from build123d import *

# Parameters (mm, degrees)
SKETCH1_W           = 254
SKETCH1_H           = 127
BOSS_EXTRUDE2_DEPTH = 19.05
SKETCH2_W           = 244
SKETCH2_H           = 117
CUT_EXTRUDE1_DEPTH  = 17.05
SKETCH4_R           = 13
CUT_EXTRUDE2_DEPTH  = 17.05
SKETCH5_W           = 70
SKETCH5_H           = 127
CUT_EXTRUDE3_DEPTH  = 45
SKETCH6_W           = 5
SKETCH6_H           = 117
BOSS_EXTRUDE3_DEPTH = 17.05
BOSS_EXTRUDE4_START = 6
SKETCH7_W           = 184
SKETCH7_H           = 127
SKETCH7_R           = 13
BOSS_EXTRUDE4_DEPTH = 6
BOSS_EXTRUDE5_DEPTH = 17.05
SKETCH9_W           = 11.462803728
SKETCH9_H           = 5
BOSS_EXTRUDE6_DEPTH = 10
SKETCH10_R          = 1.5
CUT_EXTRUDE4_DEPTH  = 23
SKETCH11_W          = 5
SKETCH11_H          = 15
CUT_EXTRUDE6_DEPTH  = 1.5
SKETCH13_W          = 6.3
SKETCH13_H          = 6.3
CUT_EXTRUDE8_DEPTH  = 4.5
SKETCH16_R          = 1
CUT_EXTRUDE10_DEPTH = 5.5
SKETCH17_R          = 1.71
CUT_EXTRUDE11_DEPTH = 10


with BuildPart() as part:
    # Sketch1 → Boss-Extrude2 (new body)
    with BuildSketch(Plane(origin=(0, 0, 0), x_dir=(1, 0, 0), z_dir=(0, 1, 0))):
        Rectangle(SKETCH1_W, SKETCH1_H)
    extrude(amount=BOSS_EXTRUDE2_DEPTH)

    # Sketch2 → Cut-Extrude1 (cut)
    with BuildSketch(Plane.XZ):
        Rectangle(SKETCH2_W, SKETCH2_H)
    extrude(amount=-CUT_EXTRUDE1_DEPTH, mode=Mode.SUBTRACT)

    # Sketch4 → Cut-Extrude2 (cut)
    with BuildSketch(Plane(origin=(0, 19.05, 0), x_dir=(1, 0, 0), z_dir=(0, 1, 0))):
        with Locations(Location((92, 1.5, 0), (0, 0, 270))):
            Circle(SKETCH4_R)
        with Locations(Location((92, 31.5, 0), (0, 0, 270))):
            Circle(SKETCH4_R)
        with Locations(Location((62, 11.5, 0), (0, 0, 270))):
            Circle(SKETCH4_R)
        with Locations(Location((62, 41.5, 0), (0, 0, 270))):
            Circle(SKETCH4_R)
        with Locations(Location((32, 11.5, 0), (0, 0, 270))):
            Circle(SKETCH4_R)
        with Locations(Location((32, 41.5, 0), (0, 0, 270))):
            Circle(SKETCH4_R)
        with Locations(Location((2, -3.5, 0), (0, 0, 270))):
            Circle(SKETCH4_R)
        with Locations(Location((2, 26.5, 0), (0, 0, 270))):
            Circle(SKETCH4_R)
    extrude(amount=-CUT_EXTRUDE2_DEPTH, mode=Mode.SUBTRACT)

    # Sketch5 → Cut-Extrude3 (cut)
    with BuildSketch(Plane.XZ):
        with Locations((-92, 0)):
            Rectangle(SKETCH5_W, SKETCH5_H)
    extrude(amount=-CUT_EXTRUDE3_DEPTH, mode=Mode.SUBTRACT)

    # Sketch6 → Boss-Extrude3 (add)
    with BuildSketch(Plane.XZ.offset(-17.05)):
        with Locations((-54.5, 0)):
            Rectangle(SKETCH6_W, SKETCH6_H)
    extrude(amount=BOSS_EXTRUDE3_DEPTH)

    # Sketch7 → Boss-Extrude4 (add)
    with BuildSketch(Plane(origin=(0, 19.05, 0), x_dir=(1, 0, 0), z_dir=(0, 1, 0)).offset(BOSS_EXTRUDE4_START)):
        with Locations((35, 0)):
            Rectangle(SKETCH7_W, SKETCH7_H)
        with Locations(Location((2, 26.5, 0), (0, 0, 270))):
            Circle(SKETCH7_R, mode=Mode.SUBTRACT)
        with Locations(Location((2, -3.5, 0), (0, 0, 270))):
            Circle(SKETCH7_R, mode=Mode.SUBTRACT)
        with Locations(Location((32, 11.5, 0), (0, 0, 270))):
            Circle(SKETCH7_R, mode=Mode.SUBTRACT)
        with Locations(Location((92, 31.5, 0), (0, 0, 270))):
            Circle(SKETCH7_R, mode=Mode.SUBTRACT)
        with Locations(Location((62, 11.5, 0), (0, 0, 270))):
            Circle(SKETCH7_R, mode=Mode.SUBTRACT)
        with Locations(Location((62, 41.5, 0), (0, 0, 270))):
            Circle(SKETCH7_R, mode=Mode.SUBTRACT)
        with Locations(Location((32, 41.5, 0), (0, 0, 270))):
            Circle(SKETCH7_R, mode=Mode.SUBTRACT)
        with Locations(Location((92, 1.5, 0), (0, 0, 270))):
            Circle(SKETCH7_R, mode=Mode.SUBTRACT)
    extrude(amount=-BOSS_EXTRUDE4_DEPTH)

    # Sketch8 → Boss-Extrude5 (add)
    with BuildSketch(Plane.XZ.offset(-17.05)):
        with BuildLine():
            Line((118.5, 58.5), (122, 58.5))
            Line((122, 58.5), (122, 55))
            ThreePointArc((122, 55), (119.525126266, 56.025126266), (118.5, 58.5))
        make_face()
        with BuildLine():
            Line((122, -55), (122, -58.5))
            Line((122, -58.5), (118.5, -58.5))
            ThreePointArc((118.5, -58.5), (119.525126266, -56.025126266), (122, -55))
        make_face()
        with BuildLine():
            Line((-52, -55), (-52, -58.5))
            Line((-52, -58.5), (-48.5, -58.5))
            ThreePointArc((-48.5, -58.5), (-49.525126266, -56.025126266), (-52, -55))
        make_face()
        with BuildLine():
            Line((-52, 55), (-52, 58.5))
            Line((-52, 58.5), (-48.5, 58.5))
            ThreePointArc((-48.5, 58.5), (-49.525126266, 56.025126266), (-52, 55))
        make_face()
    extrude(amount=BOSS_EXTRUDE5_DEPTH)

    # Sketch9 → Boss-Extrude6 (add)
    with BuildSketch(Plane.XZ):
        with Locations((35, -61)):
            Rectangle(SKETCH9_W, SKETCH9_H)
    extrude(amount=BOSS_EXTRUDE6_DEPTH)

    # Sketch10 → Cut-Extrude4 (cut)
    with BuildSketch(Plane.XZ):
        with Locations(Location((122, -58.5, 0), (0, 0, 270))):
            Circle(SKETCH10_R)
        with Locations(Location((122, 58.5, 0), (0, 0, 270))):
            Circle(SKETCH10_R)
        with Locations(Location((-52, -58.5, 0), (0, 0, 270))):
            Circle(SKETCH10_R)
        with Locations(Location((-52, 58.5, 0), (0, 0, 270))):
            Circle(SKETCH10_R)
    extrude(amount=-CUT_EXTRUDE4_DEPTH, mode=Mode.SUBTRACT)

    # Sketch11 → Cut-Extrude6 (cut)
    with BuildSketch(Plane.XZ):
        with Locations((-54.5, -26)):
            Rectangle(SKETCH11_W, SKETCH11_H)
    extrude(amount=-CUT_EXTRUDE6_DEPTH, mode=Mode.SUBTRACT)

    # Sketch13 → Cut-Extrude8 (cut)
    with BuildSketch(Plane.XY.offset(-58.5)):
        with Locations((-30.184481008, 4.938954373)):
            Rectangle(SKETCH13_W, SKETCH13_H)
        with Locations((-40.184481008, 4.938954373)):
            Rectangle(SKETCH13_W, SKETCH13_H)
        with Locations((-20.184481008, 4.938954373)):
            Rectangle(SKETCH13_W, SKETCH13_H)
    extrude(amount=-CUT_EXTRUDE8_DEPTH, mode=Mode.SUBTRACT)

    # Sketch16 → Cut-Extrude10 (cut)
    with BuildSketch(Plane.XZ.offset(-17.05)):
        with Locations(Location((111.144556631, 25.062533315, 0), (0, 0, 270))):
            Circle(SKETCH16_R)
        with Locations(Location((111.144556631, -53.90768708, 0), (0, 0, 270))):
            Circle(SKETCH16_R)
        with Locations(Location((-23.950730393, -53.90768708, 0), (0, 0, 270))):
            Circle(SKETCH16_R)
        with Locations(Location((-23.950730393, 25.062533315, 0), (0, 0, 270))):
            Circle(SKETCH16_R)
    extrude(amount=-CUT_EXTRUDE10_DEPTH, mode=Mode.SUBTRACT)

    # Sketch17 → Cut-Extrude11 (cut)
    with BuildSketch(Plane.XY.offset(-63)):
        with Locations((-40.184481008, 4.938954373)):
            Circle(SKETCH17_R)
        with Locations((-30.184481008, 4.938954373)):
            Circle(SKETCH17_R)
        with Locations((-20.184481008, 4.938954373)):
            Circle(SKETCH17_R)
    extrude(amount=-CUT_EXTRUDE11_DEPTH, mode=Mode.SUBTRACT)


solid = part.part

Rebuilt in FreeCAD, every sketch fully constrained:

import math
import FreeCAD as App
import Part
import Sketcher

V = App.Vector

doc = App.newDocument("Part")
body = doc.addObject("PartDesign::Body", "Body")

# Sketch on XZ plane
sketch1 = body.newObject("Sketcher::SketchObject", "Sketch")
sketch1.AttachmentSupport = (doc.getObject("XZ_Plane"), [""])
sketch1.MapMode = "FlatFace"
sketch1.addGeometry([
    Part.LineSegment(V(-127, -64, 0), V(-127, 64, 0)),
    Part.LineSegment(V(-127, 64, 0), V(127, 64, 0)),
    Part.LineSegment(V(127, 64, 0), V(127, -64, 0)),
    Part.LineSegment(V(127, -64, 0), V(-127, -64, 0)),
], False)
sketch1.addConstraint([
    Sketcher.Constraint("Coincident", 0, 2, 1, 1),
    Sketcher.Constraint("Coincident", 1, 2, 2, 1),
    Sketcher.Constraint("Coincident", 2, 2, 3, 1),
    Sketcher.Constraint("Coincident", 3, 2, 0, 1),
    Sketcher.Constraint("Vertical", 0),
    Sketcher.Constraint("Horizontal", 1),
    Sketcher.Constraint("Vertical", 2),
    Sketcher.Constraint("Horizontal", 3),
    Sketcher.Constraint("Symmetric", 0, 2, 2, 2, -1, 1),
    Sketcher.Constraint("DistanceX", 1, 1, 1, 2, 254.0),
    Sketcher.Constraint("DistanceY", 0, 1, 0, 2, 127.0),
])
pad1 = body.newObject("PartDesign::Pad", "Pad")
pad1.Profile = sketch1
pad1.Length = 19.05
pad1.Reversed = True

# Sketch on XZ plane
sketch2 = body.newObject("Sketcher::SketchObject", "Sketch001")
sketch2.AttachmentSupport = (doc.getObject("XZ_Plane"), [""])
sketch2.MapMode = "FlatFace"
sketch2.addGeometry([
    Part.LineSegment(V(-122, 58, 0), V(-122, -58, 0)),
    Part.LineSegment(V(-122, -58, 0), V(122, -58, 0)),
    Part.LineSegment(V(122, -58, 0), V(122, 58, 0)),
    Part.LineSegment(V(122, 58, 0), V(-122, 58, 0)),
], False)
sketch2.addConstraint([
    Sketcher.Constraint("Coincident", 0, 2, 1, 1),
    Sketcher.Constraint("Coincident", 1, 2, 2, 1),
    Sketcher.Constraint("Coincident", 2, 2, 3, 1),
    Sketcher.Constraint("Coincident", 3, 2, 0, 1),
    Sketcher.Constraint("Vertical", 0),
    Sketcher.Constraint("Horizontal", 1),
    Sketcher.Constraint("Vertical", 2),
    Sketcher.Constraint("Horizontal", 3),
    Sketcher.Constraint("Symmetric", 0, 2, 2, 2, -1, 1),
    Sketcher.Constraint("DistanceX", 1, 1, 1, 2, 244.0),
    Sketcher.Constraint("DistanceY", 0, 2, 0, 1, 117.0),
])
pocket1 = body.newObject("PartDesign::Pocket", "Pocket")
pocket1.Profile = sketch2
pocket1.Length = 17.05

# Sketch on XZ plane
sketch3 = body.newObject("Sketcher::SketchObject", "Sketch002")
sketch3.AttachmentSupport = (doc.getObject("XZ_Plane"), [""])
sketch3.MapMode = "FlatFace"
sketch3.AttachmentOffset = App.Placement(V(0, 0, -19.05), App.Rotation())
sketch3.addGeometry([
    Part.Circle(V(92, -2, 0), V(0, 0, 1), 13),  # 0
    Part.Circle(V(92, -32, 0), V(0, 0, 1), 13),  # 1
    Part.Circle(V(62, -12, 0), V(0, 0, 1), 13),  # 2
    Part.Circle(V(62, -42, 0), V(0, 0, 1), 13),  # 3
    Part.Circle(V(32, -12, 0), V(0, 0, 1), 13),  # 4
    Part.Circle(V(32, -42, 0), V(0, 0, 1), 13),  # 5
    Part.Circle(V(2, 4, 0), V(0, 0, 1), 13),  # 6
    Part.Circle(V(2, -26, 0), V(0, 0, 1), 13),  # 7
], False)
sketch3.addConstraint([
    Sketcher.Constraint("Equal", 0, 1),
    Sketcher.Constraint("Equal", 1, 2),
    Sketcher.Constraint("Equal", 2, 3),
    Sketcher.Constraint("Equal", 3, 4),
    Sketcher.Constraint("Equal", 4, 5),
    Sketcher.Constraint("Equal", 5, 6),
    Sketcher.Constraint("Equal", 6, 7),
    Sketcher.Constraint("Horizontal", 2, 3, 4, 3),
    Sketcher.Constraint("Horizontal", 3, 3, 5, 3),
    Sketcher.Constraint("Vertical", 0, 3, 1, 3),
    Sketcher.Constraint("Vertical", 2, 3, 3, 3),
    Sketcher.Constraint("Vertical", 4, 3, 5, 3),
    Sketcher.Constraint("Vertical", 6, 3, 7, 3),
    Sketcher.Constraint("Diameter", 0, 26.0),
    Sketcher.Constraint("DistanceX", -1, 1, 0, 3, 92.0),
    Sketcher.Constraint("DistanceX", -1, 1, 2, 3, 62.0),
    Sketcher.Constraint("DistanceX", -1, 1, 4, 3, 32.0),
    Sketcher.Constraint("DistanceX", -1, 1, 6, 3, 2.0),
    Sketcher.Constraint("DistanceY", 1, 3, 0, 3, 30.0),
    Sketcher.Constraint("DistanceY", 2, 3, 0, 3, 10.0),
    Sketcher.Constraint("DistanceY", 3, 3, 2, 3, 30.0),
    Sketcher.Constraint("DistanceY", 4, 3, 6, 3, 15.0),
    Sketcher.Constraint("DistanceY", 7, 3, 6, 3, 30.0),
    Sketcher.Constraint("DistanceY", 0, 3, -1, 1, 1.5),
])
pocket2 = body.newObject("PartDesign::Pocket", "Pocket001")
pocket2.Profile = sketch3
pocket2.Length = 17.05
pocket2.Reversed = True

# Sketch on XZ plane
sketch4 = body.newObject("Sketcher::SketchObject", "Sketch003")
sketch4.AttachmentSupport = (doc.getObject("XZ_Plane"), [""])
sketch4.MapMode = "FlatFace"
sketch4.addGeometry([
    Part.LineSegment(V(-127, 64, 0), V(-127, -64, 0)),
    Part.LineSegment(V(-127, -64, 0), V(-57, -64, 0)),
    Part.LineSegment(V(-57, -64, 0), V(-57, 64, 0)),
    Part.LineSegment(V(-57, 64, 0), V(-127, 64, 0)),
], False)
sketch4.addConstraint([
    Sketcher.Constraint("Coincident", 0, 2, 1, 1),
    Sketcher.Constraint("Coincident", 1, 2, 2, 1),
    Sketcher.Constraint("Coincident", 2, 2, 3, 1),
    Sketcher.Constraint("Coincident", 3, 2, 0, 1),
    Sketcher.Constraint("Vertical", 0),
    Sketcher.Constraint("Horizontal", 1),
    Sketcher.Constraint("Vertical", 2),
    Sketcher.Constraint("Horizontal", 3),
    Sketcher.Constraint("DistanceX", 1, 1, 1, 2, 70.0),
    Sketcher.Constraint("DistanceY", 0, 2, 0, 1, 127.0),
    Sketcher.Constraint("DistanceX", 0, 2, -1, 1, 127.0),
    Sketcher.Constraint("DistanceY", 0, 2, -1, 1, 63.5),
])
pocket3 = body.newObject("PartDesign::Pocket", "Pocket002")
pocket3.Profile = sketch4
pocket3.Length = 45

# Sketch on XZ plane
sketch5 = body.newObject("Sketcher::SketchObject", "Sketch004")
sketch5.AttachmentSupport = (doc.getObject("XZ_Plane"), [""])
sketch5.MapMode = "FlatFace"
sketch5.AttachmentOffset = App.Placement(V(0, 0, -17.05), App.Rotation())
sketch5.addGeometry([
    Part.LineSegment(V(-57, 58, 0), V(-57, -58, 0)),
    Part.LineSegment(V(-57, -58, 0), V(-52, -58, 0)),
    Part.LineSegment(V(-52, -58, 0), V(-52, 58, 0)),
    Part.LineSegment(V(-52, 58, 0), V(-57, 58, 0)),
], False)
sketch5.addConstraint([
    Sketcher.Constraint("Coincident", 0, 2, 1, 1),
    Sketcher.Constraint("Coincident", 1, 2, 2, 1),
    Sketcher.Constraint("Coincident", 2, 2, 3, 1),
    Sketcher.Constraint("Coincident", 3, 2, 0, 1),
    Sketcher.Constraint("Vertical", 0),
    Sketcher.Constraint("Horizontal", 1),
    Sketcher.Constraint("Vertical", 2),
    Sketcher.Constraint("Horizontal", 3),
    Sketcher.Constraint("DistanceX", 1, 1, 1, 2, 5.0),
    Sketcher.Constraint("DistanceY", 0, 2, 0, 1, 117.0),
    Sketcher.Constraint("DistanceX", 0, 2, -1, 1, 57.0),
    Sketcher.Constraint("DistanceY", 0, 2, -1, 1, 58.5),
])
pad2 = body.newObject("PartDesign::Pad", "Pad001")
pad2.Profile = sketch5
pad2.Length = 17.05

# Sketch on XZ plane
sketch6 = body.newObject("Sketcher::SketchObject", "Sketch005")
sketch6.AttachmentSupport = (doc.getObject("XZ_Plane"), [""])
sketch6.MapMode = "FlatFace"
sketch6.AttachmentOffset = App.Placement(V(0, 0, -25.05), App.Rotation())
sketch6.addGeometry([
    Part.LineSegment(V(-57, -64, 0), V(-57, 64, 0)),  # 0
    Part.LineSegment(V(-57, 64, 0), V(127, 64, 0)),  # 1
    Part.LineSegment(V(127, 64, 0), V(127, -64, 0)),  # 2
    Part.LineSegment(V(127, -64, 0), V(-57, -64, 0)),  # 3
    Part.Circle(V(2, 4, 0), V(0, 0, 1), 13),  # 4
    Part.Circle(V(32, -12, 0), V(0, 0, 1), 13),  # 5
    Part.Circle(V(62, -12, 0), V(0, 0, 1), 13),  # 6
    Part.Circle(V(92, -2, 0), V(0, 0, 1), 13),  # 7
    Part.Circle(V(2, -26, 0), V(0, 0, 1), 13),  # 8
    Part.Circle(V(32, -42, 0), V(0, 0, 1), 13),  # 9
    Part.Circle(V(92, -32, 0), V(0, 0, 1), 13),  # 10
    Part.Circle(V(62, -42, 0), V(0, 0, 1), 13),  # 11
], False)
sketch6.addConstraint([
    Sketcher.Constraint("Coincident", 0, 2, 1, 1),
    Sketcher.Constraint("Coincident", 1, 2, 2, 1),
    Sketcher.Constraint("Coincident", 2, 2, 3, 1),
    Sketcher.Constraint("Coincident", 3, 2, 0, 1),
    Sketcher.Constraint("Vertical", 0),
    Sketcher.Constraint("Horizontal", 1),
    Sketcher.Constraint("Vertical", 2),
    Sketcher.Constraint("Horizontal", 3),
    Sketcher.Constraint("Equal", 4, 5),
    Sketcher.Constraint("Equal", 5, 6),
    Sketcher.Constraint("Equal", 6, 7),
    Sketcher.Constraint("Equal", 7, 8),
    Sketcher.Constraint("Equal", 8, 9),
    Sketcher.Constraint("Equal", 9, 10),
    Sketcher.Constraint("Equal", 10, 11),
    Sketcher.Constraint("Horizontal", 5, 3, 6, 3),
    Sketcher.Constraint("Horizontal", 9, 3, 11, 3),
    Sketcher.Constraint("Vertical", 4, 3, 8, 3),
    Sketcher.Constraint("Vertical", 5, 3, 9, 3),
    Sketcher.Constraint("Vertical", 7, 3, 10, 3),
    Sketcher.Constraint("Vertical", 6, 3, 11, 3),
    Sketcher.Constraint("Diameter", 4, 26.0),
    Sketcher.Constraint("DistanceX", 1, 1, 1, 2, 184.0),
    Sketcher.Constraint("DistanceY", 0, 1, 0, 2, 127.0),
    Sketcher.Constraint("DistanceX", -1, 1, 4, 3, 2.0),
    Sketcher.Constraint("DistanceX", -1, 1, 5, 3, 32.0),
    Sketcher.Constraint("DistanceX", -1, 1, 6, 3, 62.0),
    Sketcher.Constraint("DistanceX", -1, 1, 7, 3, 92.0),
    Sketcher.Constraint("DistanceX", 0, 2, -1, 1, 57.0),
    Sketcher.Constraint("DistanceY", 5, 3, 4, 3, 15.0),
    Sketcher.Constraint("DistanceY", 6, 3, 7, 3, 10.0),
    Sketcher.Constraint("DistanceY", 8, 3, 4, 3, 30.0),
    Sketcher.Constraint("DistanceY", 9, 3, 5, 3, 30.0),
    Sketcher.Constraint("DistanceY", 10, 3, 7, 3, 30.0),
    Sketcher.Constraint("DistanceY", 4, 3, 0, 2, 60.0),
    Sketcher.Constraint("DistanceY", -1, 1, 4, 3, 3.5),
])
pad3 = body.newObject("PartDesign::Pad", "Pad002")
pad3.Profile = sketch6
pad3.Length = 6

# Sketch on XZ plane
sketch7 = body.newObject("Sketcher::SketchObject", "Sketch006")
sketch7.AttachmentSupport = (doc.getObject("XZ_Plane"), [""])
sketch7.MapMode = "FlatFace"
sketch7.AttachmentOffset = App.Placement(V(0, 0, -17.05), App.Rotation())
sketch7.addGeometry([
    Part.LineSegment(V(122, 58.5, 0), V(118.5, 58.5, 0)),  # 0
    Part.ArcOfCircle(Part.Circle(V(122, 58.5, 0), V(0, 0, 1), 3.5), math.radians(-180), math.radians(-90)),  # 1
    Part.LineSegment(V(122, 55, 0), V(122, 58.5, 0)),  # 2
    Part.LineSegment(V(122, -58.5, 0), V(122, -55, 0)),  # 3
    Part.ArcOfCircle(Part.Circle(V(122, -58.5, 0), V(0, 0, 1), 3.5), math.radians(90), math.radians(180)),  # 4
    Part.LineSegment(V(118.5, -58.5, 0), V(122, -58.5, 0)),  # 5
    Part.LineSegment(V(-52, -55, 0), V(-52, -58.5, 0)),  # 6
    Part.LineSegment(V(-52, -58.5, 0), V(-48.5, -58.5, 0)),  # 7
    Part.ArcOfCircle(Part.Circle(V(-52, -58.5, 0), V(0, 0, 1), 3.5), math.radians(0), math.radians(90)),  # 8
    Part.LineSegment(V(-52, 58.5, 0), V(-52, 55, 0)),  # 9
    Part.ArcOfCircle(Part.Circle(V(-52, 58.5, 0), V(0, 0, 1), 3.5), math.radians(-90), math.radians(0)),  # 10
    Part.LineSegment(V(-48.5, 58.5, 0), V(-52, 58.5, 0)),  # 11
], False)
sketch7.addConstraint([
    Sketcher.Constraint("Coincident", 0, 2, 1, 1),
    Sketcher.Constraint("Coincident", 1, 2, 2, 1),
    Sketcher.Constraint("Coincident", 2, 2, 0, 1),
    Sketcher.Constraint("Coincident", 3, 2, 4, 1),
    Sketcher.Constraint("Coincident", 4, 2, 5, 1),
    Sketcher.Constraint("Coincident", 5, 2, 3, 1),
    Sketcher.Constraint("Coincident", 6, 2, 7, 1),
    Sketcher.Constraint("Coincident", 7, 2, 8, 1),
    Sketcher.Constraint("Coincident", 8, 2, 6, 1),
    Sketcher.Constraint("Coincident", 9, 2, 10, 1),
    Sketcher.Constraint("Coincident", 10, 2, 11, 1),
    Sketcher.Constraint("Coincident", 11, 2, 9, 1),
    Sketcher.Constraint("Horizontal", 0),
    Sketcher.Constraint("Vertical", 2),
    Sketcher.Constraint("Vertical", 3),
    Sketcher.Constraint("Horizontal", 5),
    Sketcher.Constraint("Vertical", 6),
    Sketcher.Constraint("Horizontal", 7),
    Sketcher.Constraint("Vertical", 9),
    Sketcher.Constraint("Horizontal", 11),
    Sketcher.Constraint("Coincident", 2, 2, 1, 3),
    Sketcher.Constraint("Coincident", 5, 2, 4, 3),
    Sketcher.Constraint("Coincident", 6, 2, 8, 3),
    Sketcher.Constraint("Coincident", 11, 2, 10, 3),
    Sketcher.Constraint("Equal", 1, 4),
    Sketcher.Constraint("Equal", 4, 8),
    Sketcher.Constraint("Equal", 8, 10),
    Sketcher.Constraint("Symmetric", 1, 3, 4, 3, -1),
    Sketcher.Constraint("Symmetric", 8, 3, 10, 3, -1),
    Sketcher.Constraint("Horizontal", 4, 3, 8, 3),
    Sketcher.Constraint("Radius", 1, 3.5),
    Sketcher.Constraint("DistanceX", -1, 1, 1, 3, 122.0),
    Sketcher.Constraint("DistanceX", 8, 3, -1, 1, 52.0),
    Sketcher.Constraint("DistanceY", -1, 1, 1, 2, 55.0),
])
pad4 = body.newObject("PartDesign::Pad", "Pad003")
pad4.Profile = sketch7
pad4.Length = 17.05

# Sketch on XZ plane
sketch8 = body.newObject("Sketcher::SketchObject", "Sketch007")
sketch8.AttachmentSupport = (doc.getObject("XZ_Plane"), [""])
sketch8.MapMode = "FlatFace"
sketch8.addGeometry([
    Part.LineSegment(V(29, -58, 0), V(29, -64, 0)),
    Part.LineSegment(V(29, -64, 0), V(41, -64, 0)),
    Part.LineSegment(V(41, -64, 0), V(41, -58, 0)),
    Part.LineSegment(V(41, -58, 0), V(29, -58, 0)),
], False)
sketch8.addConstraint([
    Sketcher.Constraint("Coincident", 0, 2, 1, 1),
    Sketcher.Constraint("Coincident", 1, 2, 2, 1),
    Sketcher.Constraint("Coincident", 2, 2, 3, 1),
    Sketcher.Constraint("Coincident", 3, 2, 0, 1),
    Sketcher.Constraint("Vertical", 0),
    Sketcher.Constraint("Horizontal", 1),
    Sketcher.Constraint("Vertical", 2),
    Sketcher.Constraint("Horizontal", 3),
    Sketcher.Constraint("DistanceY", 0, 2, 0, 1, 5.0),
    Sketcher.Constraint("DistanceY", 0, 2, -1, 1, 63.5),
    Sketcher.Constraint("DistanceX", -1, 1, 0, 2, 29.268598),
    Sketcher.Constraint("DistanceX", -1, 1, 1, 2, 40.731402),
])
pad5 = body.newObject("PartDesign::Pad", "Pad004")
pad5.Profile = sketch8
pad5.Length = 10

# Sketch on XZ plane
sketch9 = body.newObject("Sketcher::SketchObject", "Sketch008")
sketch9.AttachmentSupport = (doc.getObject("XZ_Plane"), [""])
sketch9.MapMode = "FlatFace"
sketch9.addGeometry([
    Part.Circle(V(122, -58.5, 0), V(0, 0, 1), 1.5),
    Part.Circle(V(122, 58.5, 0), V(0, 0, 1), 1.5),
    Part.Circle(V(-52, -58.5, 0), V(0, 0, 1), 1.5),
    Part.Circle(V(-52, 58.5, 0), V(0, 0, 1), 1.5),
], False)
sketch9.addConstraint([
    Sketcher.Constraint("Equal", 0, 1),
    Sketcher.Constraint("Equal", 1, 2),
    Sketcher.Constraint("Equal", 2, 3),
    Sketcher.Constraint("Symmetric", 0, 3, 1, 3, -1),
    Sketcher.Constraint("Symmetric", 2, 3, 3, 3, -1),
    Sketcher.Constraint("Horizontal", 0, 3, 2, 3),
    Sketcher.Constraint("Diameter", 0, 3.0),
    Sketcher.Constraint("DistanceX", -1, 1, 0, 3, 122.0),
    Sketcher.Constraint("DistanceX", 2, 3, -1, 1, 52.0),
    Sketcher.Constraint("DistanceY", 0, 3, 1, 3, 117.0),
])
pocket4 = body.newObject("PartDesign::Pocket", "Pocket003")
pocket4.Profile = sketch9
pocket4.Length = 23

# Sketch on XZ plane
sketch10 = body.newObject("Sketcher::SketchObject", "Sketch009")
sketch10.AttachmentSupport = (doc.getObject("XZ_Plane"), [""])
sketch10.MapMode = "FlatFace"
sketch10.addGeometry([
    Part.LineSegment(V(-57, -18, 0), V(-57, -34, 0)),
    Part.LineSegment(V(-57, -34, 0), V(-52, -34, 0)),
    Part.LineSegment(V(-52, -34, 0), V(-52, -18, 0)),
    Part.LineSegment(V(-52, -18, 0), V(-57, -18, 0)),
], False)
sketch10.addConstraint([
    Sketcher.Constraint("Coincident", 0, 2, 1, 1),
    Sketcher.Constraint("Coincident", 1, 2, 2, 1),
    Sketcher.Constraint("Coincident", 2, 2, 3, 1),
    Sketcher.Constraint("Coincident", 3, 2, 0, 1),
    Sketcher.Constraint("Vertical", 0),
    Sketcher.Constraint("Horizontal", 1),
    Sketcher.Constraint("Vertical", 2),
    Sketcher.Constraint("Horizontal", 3),
    Sketcher.Constraint("DistanceX", 1, 1, 1, 2, 5.0),
    Sketcher.Constraint("DistanceY", 0, 2, 0, 1, 15.0),
    Sketcher.Constraint("DistanceX", 0, 2, -1, 1, 57.0),
    Sketcher.Constraint("DistanceY", 0, 2, -1, 1, 33.5),
])
pocket5 = body.newObject("PartDesign::Pocket", "Pocket004")
pocket5.Profile = sketch10
pocket5.Length = 1.5

# Sketch on XY plane
sketch11 = body.newObject("Sketcher::SketchObject", "Sketch010")
sketch11.AttachmentSupport = (doc.getObject("XY_Plane"), [""])
sketch11.MapMode = "FlatFace"
sketch11.AttachmentOffset = App.Placement(V(0, 0, -58.5), App.Rotation())
sketch11.addGeometry([
    Part.LineSegment(V(-33, 8, 0), V(-33, 2, 0)),  # 0
    Part.LineSegment(V(-33, 2, 0), V(-27, 2, 0)),  # 1
    Part.LineSegment(V(-27, 2, 0), V(-27, 8, 0)),  # 2
    Part.LineSegment(V(-27, 8, 0), V(-33, 8, 0)),  # 3
    Part.LineSegment(V(-43, 8, 0), V(-43, 2, 0)),  # 4
    Part.LineSegment(V(-43, 2, 0), V(-37, 2, 0)),  # 5
    Part.LineSegment(V(-37, 2, 0), V(-37, 8, 0)),  # 6
    Part.LineSegment(V(-37, 8, 0), V(-43, 8, 0)),  # 7
    Part.LineSegment(V(-23, 8, 0), V(-23, 2, 0)),  # 8
    Part.LineSegment(V(-23, 2, 0), V(-17, 2, 0)),  # 9
    Part.LineSegment(V(-17, 2, 0), V(-17, 8, 0)),  # 10
    Part.LineSegment(V(-17, 8, 0), V(-23, 8, 0)),  # 11
], False)
sketch11.addConstraint([
    Sketcher.Constraint("Coincident", 0, 2, 1, 1),
    Sketcher.Constraint("Coincident", 1, 2, 2, 1),
    Sketcher.Constraint("Coincident", 2, 2, 3, 1),
    Sketcher.Constraint("Coincident", 3, 2, 0, 1),
    Sketcher.Constraint("Coincident", 4, 2, 5, 1),
    Sketcher.Constraint("Coincident", 5, 2, 6, 1),
    Sketcher.Constraint("Coincident", 6, 2, 7, 1),
    Sketcher.Constraint("Coincident", 7, 2, 4, 1),
    Sketcher.Constraint("Coincident", 8, 2, 9, 1),
    Sketcher.Constraint("Coincident", 9, 2, 10, 1),
    Sketcher.Constraint("Coincident", 10, 2, 11, 1),
    Sketcher.Constraint("Coincident", 11, 2, 8, 1),
    Sketcher.Constraint("Vertical", 0),
    Sketcher.Constraint("Horizontal", 1),
    Sketcher.Constraint("Vertical", 2),
    Sketcher.Constraint("Horizontal", 3),
    Sketcher.Constraint("Vertical", 4),
    Sketcher.Constraint("Horizontal", 5),
    Sketcher.Constraint("Vertical", 6),
    Sketcher.Constraint("Horizontal", 7),
    Sketcher.Constraint("Vertical", 8),
    Sketcher.Constraint("Horizontal", 9),
    Sketcher.Constraint("Vertical", 10),
    Sketcher.Constraint("Horizontal", 11),
    Sketcher.Constraint("Horizontal", 1, 2, 4, 2),
    Sketcher.Constraint("Horizontal", 3, 2, 6, 2),
    Sketcher.Constraint("Horizontal", 5, 2, 8, 2),
    Sketcher.Constraint("Horizontal", 7, 2, 10, 2),
    Sketcher.Constraint("Equal", 3, 5),
    Sketcher.Constraint("Equal", 7, 9),
    Sketcher.Constraint("Equal", 11, 0),
    Sketcher.Constraint("DistanceX", 1, 1, 1, 2, 6.3),
    Sketcher.Constraint("DistanceX", 4, 2, 0, 2, 10.0),
    Sketcher.Constraint("DistanceX", 0, 2, 8, 2, 10.0),
    Sketcher.Constraint("DistanceX", 0, 2, -1, 1, 33.334481),
    Sketcher.Constraint("DistanceY", -1, 1, 0, 2, 1.788954),
])
pocket6 = body.newObject("PartDesign::Pocket", "Pocket005")
pocket6.Profile = sketch11
pocket6.Length = 4.5

# Sketch on XZ plane
sketch12 = body.newObject("Sketcher::SketchObject", "Sketch011")
sketch12.AttachmentSupport = (doc.getObject("XZ_Plane"), [""])
sketch12.MapMode = "FlatFace"
sketch12.AttachmentOffset = App.Placement(V(0, 0, -17.05), App.Rotation())
sketch12.addGeometry([
    Part.Circle(V(111.1, 25.1, 0), V(0, 0, 1), 1),
    Part.Circle(V(111.1, -53.9, 0), V(0, 0, 1), 1),
    Part.Circle(V(-24, -53.9, 0), V(0, 0, 1), 1),
    Part.Circle(V(-24, 25.1, 0), V(0, 0, 1), 1),
], False)
sketch12.addConstraint([
    Sketcher.Constraint("Equal", 0, 1),
    Sketcher.Constraint("Equal", 1, 2),
    Sketcher.Constraint("Equal", 2, 3),
    Sketcher.Constraint("Horizontal", 1, 3, 2, 3),
    Sketcher.Constraint("Horizontal", 0, 3, 3, 3),
    Sketcher.Constraint("Vertical", 0, 3, 1, 3),
    Sketcher.Constraint("Vertical", 2, 3, 3, 3),
    Sketcher.Constraint("Diameter", 0, 2.0),
    Sketcher.Constraint("DistanceX", 2, 3, -1, 1, 23.95073),
    Sketcher.Constraint("DistanceY", 1, 3, 0, 3, 78.97022),
    Sketcher.Constraint("DistanceX", -1, 1, 0, 3, 111.144557),
    Sketcher.Constraint("DistanceY", -1, 1, 0, 3, 25.062533),
])
pocket7 = body.newObject("PartDesign::Pocket", "Pocket006")
pocket7.Profile = sketch12
pocket7.Length = 5.5

# Sketch on XY plane
sketch13 = body.newObject("Sketcher::SketchObject", "Sketch012")
sketch13.AttachmentSupport = (doc.getObject("XY_Plane"), [""])
sketch13.MapMode = "FlatFace"
sketch13.AttachmentOffset = App.Placement(V(0, 0, -63), App.Rotation())
sketch13.addGeometry([
    Part.Circle(V(-40.2, 4.9, 0), V(0, 0, 1), 1.7),
    Part.Circle(V(-30.2, 4.9, 0), V(0, 0, 1), 1.7),
    Part.Circle(V(-20.2, 4.9, 0), V(0, 0, 1), 1.7),
], False)
sketch13.addConstraint([
    Sketcher.Constraint("Equal", 0, 1),
    Sketcher.Constraint("Equal", 1, 2),
    Sketcher.Constraint("Horizontal", 0, 3, 1, 3),
    Sketcher.Constraint("Horizontal", 1, 3, 2, 3),
    Sketcher.Constraint("Diameter", 0, 3.42),
    Sketcher.Constraint("DistanceX", 0, 3, 1, 3, 10.0),
    Sketcher.Constraint("DistanceX", 1, 3, 2, 3, 10.0),
    Sketcher.Constraint("DistanceX", 0, 3, -1, 1, 40.184481),
    Sketcher.Constraint("DistanceY", -1, 1, 0, 3, 4.938954),
])
pocket8 = body.newObject("PartDesign::Pocket", "Pocket007")
pocket8.Profile = sketch13
pocket8.Length = 10

doc.recompute()
